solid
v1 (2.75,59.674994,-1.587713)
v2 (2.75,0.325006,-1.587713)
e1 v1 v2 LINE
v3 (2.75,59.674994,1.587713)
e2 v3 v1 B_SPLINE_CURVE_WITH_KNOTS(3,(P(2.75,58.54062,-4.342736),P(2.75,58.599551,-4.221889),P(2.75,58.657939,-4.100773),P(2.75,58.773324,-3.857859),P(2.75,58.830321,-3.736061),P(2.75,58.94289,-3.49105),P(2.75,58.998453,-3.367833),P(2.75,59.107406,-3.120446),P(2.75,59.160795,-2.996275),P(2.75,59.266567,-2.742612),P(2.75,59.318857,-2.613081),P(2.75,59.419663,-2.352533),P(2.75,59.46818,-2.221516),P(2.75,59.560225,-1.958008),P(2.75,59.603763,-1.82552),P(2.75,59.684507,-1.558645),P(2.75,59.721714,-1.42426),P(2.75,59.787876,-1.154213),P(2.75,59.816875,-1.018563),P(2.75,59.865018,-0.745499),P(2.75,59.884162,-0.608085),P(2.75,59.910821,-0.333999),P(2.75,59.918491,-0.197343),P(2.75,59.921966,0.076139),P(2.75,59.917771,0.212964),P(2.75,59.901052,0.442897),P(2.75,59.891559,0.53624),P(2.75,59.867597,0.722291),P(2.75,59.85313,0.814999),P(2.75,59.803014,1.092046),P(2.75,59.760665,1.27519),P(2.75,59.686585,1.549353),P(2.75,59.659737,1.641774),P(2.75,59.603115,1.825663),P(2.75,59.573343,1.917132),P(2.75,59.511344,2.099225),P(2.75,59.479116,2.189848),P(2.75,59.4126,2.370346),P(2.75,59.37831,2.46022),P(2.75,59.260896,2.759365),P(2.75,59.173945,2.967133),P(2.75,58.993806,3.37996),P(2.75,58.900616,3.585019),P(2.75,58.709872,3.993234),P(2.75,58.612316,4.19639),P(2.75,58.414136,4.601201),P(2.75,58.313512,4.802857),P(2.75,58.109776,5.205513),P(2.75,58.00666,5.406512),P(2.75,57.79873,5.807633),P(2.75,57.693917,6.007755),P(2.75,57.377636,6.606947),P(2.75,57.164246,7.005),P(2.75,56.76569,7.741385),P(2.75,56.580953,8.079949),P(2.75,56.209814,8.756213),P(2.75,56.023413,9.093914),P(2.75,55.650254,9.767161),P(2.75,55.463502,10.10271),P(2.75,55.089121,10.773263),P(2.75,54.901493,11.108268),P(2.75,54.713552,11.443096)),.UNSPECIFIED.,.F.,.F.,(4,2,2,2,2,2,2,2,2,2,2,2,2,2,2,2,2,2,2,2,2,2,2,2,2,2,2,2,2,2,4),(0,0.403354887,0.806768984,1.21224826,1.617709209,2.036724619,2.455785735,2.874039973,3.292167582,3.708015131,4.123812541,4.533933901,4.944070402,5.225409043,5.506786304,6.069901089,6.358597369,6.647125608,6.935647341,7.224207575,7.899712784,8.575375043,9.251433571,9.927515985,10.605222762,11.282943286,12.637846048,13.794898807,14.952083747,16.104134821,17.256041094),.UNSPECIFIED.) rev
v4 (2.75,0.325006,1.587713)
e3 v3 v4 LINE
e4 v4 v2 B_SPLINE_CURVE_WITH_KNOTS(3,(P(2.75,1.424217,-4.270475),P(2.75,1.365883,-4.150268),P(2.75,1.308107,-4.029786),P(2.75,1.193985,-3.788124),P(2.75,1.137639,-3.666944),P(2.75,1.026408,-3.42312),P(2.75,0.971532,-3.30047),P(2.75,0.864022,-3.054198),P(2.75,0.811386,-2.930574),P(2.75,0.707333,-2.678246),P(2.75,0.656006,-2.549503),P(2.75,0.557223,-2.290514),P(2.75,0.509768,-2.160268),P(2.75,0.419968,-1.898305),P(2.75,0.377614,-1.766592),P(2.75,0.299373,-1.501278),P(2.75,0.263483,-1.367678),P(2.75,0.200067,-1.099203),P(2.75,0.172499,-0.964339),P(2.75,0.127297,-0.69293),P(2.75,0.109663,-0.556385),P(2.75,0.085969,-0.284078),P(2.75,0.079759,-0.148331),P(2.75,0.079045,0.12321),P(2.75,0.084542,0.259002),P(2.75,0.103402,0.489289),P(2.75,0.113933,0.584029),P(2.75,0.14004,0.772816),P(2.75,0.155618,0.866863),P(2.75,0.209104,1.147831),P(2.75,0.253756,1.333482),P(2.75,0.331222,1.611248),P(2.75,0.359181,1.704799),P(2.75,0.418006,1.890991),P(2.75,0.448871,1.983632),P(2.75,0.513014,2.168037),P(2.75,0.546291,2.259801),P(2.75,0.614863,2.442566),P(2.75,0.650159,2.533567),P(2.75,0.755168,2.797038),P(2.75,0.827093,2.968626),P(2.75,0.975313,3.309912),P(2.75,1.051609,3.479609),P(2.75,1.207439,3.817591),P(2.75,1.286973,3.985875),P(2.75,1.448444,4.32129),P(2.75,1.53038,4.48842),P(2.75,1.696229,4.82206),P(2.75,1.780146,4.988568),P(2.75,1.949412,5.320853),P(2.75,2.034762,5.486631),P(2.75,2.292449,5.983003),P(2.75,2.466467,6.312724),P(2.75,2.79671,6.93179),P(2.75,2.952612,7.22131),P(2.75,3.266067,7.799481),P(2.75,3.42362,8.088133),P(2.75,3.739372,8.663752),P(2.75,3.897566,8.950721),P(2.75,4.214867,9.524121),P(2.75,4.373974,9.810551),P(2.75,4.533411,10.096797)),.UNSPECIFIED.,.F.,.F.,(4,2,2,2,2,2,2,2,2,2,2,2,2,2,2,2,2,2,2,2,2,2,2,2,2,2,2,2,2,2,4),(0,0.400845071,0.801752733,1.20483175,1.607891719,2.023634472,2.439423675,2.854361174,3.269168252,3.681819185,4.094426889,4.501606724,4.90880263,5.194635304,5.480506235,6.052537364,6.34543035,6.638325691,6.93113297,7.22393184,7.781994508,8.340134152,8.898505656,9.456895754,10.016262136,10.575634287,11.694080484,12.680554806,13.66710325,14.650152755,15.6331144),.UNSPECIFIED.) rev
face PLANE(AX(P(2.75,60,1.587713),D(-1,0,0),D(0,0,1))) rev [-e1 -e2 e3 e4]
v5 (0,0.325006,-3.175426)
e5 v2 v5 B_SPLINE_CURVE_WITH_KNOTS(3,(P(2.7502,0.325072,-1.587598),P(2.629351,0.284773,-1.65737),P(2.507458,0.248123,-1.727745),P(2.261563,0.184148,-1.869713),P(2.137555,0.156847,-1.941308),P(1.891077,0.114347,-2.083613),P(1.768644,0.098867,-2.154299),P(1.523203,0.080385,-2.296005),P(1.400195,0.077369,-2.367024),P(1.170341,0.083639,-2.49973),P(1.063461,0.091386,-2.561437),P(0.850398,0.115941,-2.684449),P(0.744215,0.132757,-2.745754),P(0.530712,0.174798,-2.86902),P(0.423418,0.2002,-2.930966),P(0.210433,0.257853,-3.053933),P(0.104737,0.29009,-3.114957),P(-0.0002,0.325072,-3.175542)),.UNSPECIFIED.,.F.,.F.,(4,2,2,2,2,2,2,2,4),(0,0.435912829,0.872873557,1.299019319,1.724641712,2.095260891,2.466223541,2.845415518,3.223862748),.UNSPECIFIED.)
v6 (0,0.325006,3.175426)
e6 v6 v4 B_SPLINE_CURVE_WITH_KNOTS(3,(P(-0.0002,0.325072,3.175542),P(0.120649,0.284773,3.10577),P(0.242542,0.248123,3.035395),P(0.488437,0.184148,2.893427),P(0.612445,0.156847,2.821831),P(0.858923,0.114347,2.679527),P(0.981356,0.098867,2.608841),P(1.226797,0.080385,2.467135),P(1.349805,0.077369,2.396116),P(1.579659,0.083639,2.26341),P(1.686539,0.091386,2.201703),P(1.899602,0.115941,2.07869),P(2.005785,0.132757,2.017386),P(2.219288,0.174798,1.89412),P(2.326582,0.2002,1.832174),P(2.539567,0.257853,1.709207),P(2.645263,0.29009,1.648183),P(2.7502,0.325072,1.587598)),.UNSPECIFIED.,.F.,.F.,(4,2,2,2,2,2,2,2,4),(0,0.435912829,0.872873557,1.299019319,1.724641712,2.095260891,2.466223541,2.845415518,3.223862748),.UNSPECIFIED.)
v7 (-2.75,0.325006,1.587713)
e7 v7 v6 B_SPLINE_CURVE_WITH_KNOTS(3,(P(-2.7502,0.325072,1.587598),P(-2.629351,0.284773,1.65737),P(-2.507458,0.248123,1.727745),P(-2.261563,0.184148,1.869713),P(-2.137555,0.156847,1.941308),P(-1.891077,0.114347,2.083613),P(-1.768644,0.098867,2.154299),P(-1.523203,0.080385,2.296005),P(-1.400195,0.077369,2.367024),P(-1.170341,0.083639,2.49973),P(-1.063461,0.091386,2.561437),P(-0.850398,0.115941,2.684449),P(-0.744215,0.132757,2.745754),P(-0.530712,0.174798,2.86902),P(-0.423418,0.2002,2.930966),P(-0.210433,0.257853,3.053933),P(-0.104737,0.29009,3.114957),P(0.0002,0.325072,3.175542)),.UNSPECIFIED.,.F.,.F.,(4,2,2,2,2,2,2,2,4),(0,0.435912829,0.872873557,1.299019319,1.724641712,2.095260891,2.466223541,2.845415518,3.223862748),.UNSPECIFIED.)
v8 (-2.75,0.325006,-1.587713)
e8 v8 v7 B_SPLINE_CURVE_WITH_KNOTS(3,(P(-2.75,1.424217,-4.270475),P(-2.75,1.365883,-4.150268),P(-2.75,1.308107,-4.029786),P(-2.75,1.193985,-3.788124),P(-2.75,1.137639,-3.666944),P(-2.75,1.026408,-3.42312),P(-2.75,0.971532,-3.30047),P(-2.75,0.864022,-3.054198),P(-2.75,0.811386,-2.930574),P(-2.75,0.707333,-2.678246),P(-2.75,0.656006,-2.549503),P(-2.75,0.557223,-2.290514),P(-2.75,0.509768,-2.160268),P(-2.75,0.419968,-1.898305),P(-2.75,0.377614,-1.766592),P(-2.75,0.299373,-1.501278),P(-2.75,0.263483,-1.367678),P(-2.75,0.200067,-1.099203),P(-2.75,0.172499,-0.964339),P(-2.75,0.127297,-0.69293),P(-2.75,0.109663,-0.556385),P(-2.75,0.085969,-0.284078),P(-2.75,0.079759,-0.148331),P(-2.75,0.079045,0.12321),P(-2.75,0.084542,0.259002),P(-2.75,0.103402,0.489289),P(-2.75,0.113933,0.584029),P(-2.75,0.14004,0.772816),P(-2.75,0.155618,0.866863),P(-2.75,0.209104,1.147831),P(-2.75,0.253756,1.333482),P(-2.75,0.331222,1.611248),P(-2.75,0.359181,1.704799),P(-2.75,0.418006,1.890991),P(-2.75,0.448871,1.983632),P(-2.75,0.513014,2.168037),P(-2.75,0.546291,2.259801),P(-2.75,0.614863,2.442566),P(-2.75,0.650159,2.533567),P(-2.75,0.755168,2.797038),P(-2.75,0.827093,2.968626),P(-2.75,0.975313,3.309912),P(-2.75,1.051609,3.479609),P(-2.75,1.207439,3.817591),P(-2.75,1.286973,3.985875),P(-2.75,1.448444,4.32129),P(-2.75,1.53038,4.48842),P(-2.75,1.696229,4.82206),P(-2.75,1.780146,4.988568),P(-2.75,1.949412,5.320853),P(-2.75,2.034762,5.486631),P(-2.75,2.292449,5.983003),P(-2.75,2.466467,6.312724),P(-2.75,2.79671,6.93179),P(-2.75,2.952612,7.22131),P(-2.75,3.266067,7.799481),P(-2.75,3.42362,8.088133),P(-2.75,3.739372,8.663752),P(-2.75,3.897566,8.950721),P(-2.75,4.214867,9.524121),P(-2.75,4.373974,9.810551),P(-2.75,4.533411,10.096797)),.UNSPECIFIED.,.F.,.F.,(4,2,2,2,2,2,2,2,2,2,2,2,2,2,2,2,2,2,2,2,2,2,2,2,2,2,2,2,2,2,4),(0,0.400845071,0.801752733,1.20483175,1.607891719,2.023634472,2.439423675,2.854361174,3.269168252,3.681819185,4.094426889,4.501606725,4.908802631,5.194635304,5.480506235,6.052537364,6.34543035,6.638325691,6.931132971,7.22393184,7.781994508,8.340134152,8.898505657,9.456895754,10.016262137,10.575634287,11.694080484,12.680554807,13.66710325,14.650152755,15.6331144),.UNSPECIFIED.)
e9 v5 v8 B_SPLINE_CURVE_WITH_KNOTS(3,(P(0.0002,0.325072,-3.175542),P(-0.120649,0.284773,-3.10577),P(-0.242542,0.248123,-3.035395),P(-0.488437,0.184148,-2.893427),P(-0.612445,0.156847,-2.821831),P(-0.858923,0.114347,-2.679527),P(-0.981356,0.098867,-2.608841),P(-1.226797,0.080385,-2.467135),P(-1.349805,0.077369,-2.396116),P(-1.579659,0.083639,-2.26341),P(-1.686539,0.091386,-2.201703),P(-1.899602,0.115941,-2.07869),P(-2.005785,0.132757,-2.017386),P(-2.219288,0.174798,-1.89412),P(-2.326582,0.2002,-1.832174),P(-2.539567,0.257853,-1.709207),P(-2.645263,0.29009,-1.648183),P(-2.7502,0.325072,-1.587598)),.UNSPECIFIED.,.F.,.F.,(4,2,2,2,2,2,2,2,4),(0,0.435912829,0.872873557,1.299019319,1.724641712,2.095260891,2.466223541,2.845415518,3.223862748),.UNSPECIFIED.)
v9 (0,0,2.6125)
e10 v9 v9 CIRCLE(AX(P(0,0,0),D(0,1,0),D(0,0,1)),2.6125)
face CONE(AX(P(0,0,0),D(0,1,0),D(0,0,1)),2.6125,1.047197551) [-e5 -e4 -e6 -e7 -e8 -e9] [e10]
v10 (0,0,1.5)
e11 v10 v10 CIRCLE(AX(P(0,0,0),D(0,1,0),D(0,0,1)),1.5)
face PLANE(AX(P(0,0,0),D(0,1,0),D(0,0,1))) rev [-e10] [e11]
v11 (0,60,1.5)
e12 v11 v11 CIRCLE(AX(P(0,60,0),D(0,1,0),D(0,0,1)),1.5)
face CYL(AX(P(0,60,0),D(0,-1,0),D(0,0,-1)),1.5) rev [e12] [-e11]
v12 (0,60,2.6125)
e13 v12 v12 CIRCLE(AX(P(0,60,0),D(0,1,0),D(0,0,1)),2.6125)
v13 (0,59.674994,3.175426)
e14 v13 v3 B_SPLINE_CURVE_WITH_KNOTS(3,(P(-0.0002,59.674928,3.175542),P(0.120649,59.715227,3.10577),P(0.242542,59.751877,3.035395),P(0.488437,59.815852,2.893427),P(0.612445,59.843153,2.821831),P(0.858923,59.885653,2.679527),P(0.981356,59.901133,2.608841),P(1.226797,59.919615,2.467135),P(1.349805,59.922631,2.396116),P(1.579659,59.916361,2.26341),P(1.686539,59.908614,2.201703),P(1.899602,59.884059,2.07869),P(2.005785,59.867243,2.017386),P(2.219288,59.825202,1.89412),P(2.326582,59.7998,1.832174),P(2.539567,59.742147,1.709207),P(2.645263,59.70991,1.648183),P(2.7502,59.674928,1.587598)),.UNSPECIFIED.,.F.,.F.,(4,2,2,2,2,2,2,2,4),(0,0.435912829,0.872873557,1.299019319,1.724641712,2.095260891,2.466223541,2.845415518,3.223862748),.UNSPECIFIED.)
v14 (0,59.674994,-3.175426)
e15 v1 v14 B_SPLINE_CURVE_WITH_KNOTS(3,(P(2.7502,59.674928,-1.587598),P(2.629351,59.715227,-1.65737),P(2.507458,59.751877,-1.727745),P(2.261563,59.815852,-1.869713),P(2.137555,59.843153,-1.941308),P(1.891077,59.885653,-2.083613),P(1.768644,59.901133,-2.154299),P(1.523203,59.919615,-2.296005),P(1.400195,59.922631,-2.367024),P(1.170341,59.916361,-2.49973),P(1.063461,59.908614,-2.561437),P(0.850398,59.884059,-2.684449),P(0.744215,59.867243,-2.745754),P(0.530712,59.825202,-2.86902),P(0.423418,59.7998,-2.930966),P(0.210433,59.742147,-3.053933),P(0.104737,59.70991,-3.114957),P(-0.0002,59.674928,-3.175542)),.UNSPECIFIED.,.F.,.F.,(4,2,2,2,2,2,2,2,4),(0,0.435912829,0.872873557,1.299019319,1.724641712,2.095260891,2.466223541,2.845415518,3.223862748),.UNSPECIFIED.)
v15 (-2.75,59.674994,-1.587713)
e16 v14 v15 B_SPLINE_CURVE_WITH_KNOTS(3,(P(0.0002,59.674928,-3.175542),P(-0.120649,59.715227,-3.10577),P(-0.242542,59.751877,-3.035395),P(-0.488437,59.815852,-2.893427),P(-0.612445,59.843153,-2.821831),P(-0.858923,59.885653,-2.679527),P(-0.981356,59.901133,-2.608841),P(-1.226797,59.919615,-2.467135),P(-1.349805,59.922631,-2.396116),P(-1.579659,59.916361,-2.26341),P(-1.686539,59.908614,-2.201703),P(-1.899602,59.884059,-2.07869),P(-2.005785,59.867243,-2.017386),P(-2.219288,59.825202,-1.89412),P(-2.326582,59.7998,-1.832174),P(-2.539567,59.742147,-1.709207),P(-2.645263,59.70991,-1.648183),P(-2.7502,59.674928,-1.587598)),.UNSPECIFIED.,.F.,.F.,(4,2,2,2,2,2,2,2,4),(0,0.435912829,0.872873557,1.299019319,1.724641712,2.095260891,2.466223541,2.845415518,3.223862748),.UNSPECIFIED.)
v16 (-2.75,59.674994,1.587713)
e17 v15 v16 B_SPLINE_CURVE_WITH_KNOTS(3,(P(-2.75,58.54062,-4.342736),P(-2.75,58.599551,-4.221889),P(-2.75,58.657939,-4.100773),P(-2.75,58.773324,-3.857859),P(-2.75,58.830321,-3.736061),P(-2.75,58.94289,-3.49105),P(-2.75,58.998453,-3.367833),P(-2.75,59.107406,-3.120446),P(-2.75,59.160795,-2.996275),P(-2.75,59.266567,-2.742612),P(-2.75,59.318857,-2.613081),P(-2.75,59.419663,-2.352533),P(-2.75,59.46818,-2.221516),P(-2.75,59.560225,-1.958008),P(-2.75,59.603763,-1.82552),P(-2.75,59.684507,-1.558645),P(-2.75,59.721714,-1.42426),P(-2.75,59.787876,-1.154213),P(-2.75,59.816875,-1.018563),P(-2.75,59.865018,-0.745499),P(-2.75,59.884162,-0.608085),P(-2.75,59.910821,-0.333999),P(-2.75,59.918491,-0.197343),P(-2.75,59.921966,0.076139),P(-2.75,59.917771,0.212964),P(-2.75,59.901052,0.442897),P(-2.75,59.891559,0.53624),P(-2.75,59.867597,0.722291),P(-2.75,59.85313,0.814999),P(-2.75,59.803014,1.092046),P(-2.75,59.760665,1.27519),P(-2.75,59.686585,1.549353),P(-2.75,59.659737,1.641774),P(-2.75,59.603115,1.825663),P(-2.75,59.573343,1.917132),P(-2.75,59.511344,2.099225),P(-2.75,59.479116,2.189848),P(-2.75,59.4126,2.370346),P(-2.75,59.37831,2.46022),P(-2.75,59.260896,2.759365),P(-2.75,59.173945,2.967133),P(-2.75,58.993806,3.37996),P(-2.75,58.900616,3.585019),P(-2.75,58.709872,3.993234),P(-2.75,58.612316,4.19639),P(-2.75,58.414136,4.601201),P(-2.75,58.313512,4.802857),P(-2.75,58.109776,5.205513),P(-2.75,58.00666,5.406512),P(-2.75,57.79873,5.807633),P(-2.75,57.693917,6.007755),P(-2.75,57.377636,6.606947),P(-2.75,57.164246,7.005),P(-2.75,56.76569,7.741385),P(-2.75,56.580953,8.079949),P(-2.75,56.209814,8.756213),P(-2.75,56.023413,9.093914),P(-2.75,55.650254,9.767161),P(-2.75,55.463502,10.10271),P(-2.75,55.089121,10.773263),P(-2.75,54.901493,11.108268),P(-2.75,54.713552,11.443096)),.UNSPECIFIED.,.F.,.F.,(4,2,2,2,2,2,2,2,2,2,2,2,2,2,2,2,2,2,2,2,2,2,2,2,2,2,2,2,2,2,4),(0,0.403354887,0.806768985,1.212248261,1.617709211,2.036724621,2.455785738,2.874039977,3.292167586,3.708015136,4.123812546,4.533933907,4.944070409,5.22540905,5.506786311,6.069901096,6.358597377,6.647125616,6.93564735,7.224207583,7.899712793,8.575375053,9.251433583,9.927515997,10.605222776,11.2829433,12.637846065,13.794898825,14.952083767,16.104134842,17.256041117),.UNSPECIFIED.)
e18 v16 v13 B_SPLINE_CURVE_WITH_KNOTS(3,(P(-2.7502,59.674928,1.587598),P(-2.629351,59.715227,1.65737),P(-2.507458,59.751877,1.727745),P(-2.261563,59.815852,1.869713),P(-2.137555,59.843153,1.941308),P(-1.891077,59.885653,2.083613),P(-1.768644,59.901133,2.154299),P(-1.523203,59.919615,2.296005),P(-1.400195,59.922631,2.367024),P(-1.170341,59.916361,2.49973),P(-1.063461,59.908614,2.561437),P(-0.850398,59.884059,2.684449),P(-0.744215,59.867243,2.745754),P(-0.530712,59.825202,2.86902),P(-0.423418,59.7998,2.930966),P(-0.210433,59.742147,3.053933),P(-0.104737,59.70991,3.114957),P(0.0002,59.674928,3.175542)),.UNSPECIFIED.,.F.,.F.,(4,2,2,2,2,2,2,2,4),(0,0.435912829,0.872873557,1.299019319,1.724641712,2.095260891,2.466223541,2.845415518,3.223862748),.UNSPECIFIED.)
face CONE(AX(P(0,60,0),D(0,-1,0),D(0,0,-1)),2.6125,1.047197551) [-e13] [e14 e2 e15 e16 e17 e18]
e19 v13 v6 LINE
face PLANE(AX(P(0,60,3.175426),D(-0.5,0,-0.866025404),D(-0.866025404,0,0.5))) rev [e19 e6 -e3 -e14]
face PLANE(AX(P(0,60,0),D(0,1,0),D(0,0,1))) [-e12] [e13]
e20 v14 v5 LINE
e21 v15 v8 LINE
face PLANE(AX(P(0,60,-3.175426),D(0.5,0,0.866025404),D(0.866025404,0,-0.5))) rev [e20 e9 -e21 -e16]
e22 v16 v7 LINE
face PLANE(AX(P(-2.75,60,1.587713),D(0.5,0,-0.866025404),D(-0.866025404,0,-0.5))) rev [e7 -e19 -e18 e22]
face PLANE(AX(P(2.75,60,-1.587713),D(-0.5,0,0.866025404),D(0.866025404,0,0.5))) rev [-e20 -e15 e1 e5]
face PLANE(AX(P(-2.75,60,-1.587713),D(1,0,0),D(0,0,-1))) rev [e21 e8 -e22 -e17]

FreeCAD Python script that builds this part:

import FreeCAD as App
import Part
import Sketcher

V = App.Vector
Q = App.Units.Quantity

doc = App.newDocument("Part")
body = doc.addObject("PartDesign::Body", "Body")

# Sketch on XZ plane
sketch1 = body.newObject("Sketcher::SketchObject", "Sketch")
sketch1.AttachmentSupport = (doc.getObject("XZ_Plane"), [""])
sketch1.MapMode = "FlatFace"
sketch1.addGeometry([
    Part.LineSegment(V(0, -3.175426, 0), V(-2.75, -1.587713, 0)),  # 0
    Part.LineSegment(V(-2.75, -1.587713, 0), V(-2.75, 1.587713, 0)),  # 1
    Part.LineSegment(V(-2.75, 1.587713, 0), V(0, 3.175426, 0)),  # 2
    Part.LineSegment(V(0, 3.175426, 0), V(2.75, 1.587713, 0)),  # 3
    Part.LineSegment(V(2.75, 1.587713, 0), V(2.75, -1.587713, 0)),  # 4
    Part.LineSegment(V(2.75, -1.587713, 0), V(0, -3.175426, 0)),  # 5
    Part.Circle(V(0, 0, 0), V(0, 0, 1), 1.5),  # 6
], False)
sketch1.addConstraint([
    Sketcher.Constraint("Coincident", 0, 2, 1, 1),
    Sketcher.Constraint("Coincident", 1, 2, 2, 1),
    Sketcher.Constraint("Coincident", 2, 2, 3, 1),
    Sketcher.Constraint("Coincident", 3, 2, 4, 1),
    Sketcher.Constraint("Coincident", 4, 2, 5, 1),
    Sketcher.Constraint("Coincident", 5, 2, 0, 1),
    Sketcher.Constraint("Vertical", 1),
    Sketcher.Constraint("Vertical", 4),
    Sketcher.Constraint("Coincident", 6, 3, -1, 1),
    Sketcher.Constraint("Symmetric", 0, 2, 3, 2, -1, 1),
    Sketcher.Constraint("Symmetric", 2, 2, 5, 2, -1, 1),
    Sketcher.Constraint("PointOnObject", 2, 2, -2),
    Sketcher.Constraint("Parallel", 2, 5),
    Sketcher.Constraint("Horizontal", 1, 2, 3, 2),
    Sketcher.Constraint("Diameter", 6, 3.0),
    Sketcher.Constraint("Angle", 0, Q("150 deg")),
    Sketcher.Constraint("DistanceX", 1, 2, 3, 2, 5.5),
    Sketcher.Constraint("DistanceY", 1, 1, 1, 2, 3.175426),
])
pad1 = body.newObject("PartDesign::Pad", "Pad")
pad1.Profile = sketch1
pad1.Length = 60
pad1.Reversed = True

# Sketch on YZ plane
sketch2 = body.newObject("Sketcher::SketchObject", "Sketch001")
sketch2.AttachmentSupport = (doc.getObject("YZ_Plane"), [""])
sketch2.MapMode = "FlatFace"
sketch2.addGeometry([
    Part.LineSegment(V(3.328738, 8.378044, 0), V(0, 8.378044, 0)),  # 0
    Part.LineSegment(V(0, 8.378044, 0), V(0, 2.6125, 0)),  # 1
    Part.LineSegment(V(0, 2.6125, 0), V(3.328738, 8.378044, 0)),  # 2
    Part.LineSegment(V(60, 2.6125, 0), V(60, 11.931876, 0)),  # 3
    Part.LineSegment(V(60, 11.931876, 0), V(54.619456, 11.931876, 0)),  # 4
    Part.LineSegment(V(54.619456, 11.931876, 0), V(60, 2.6125, 0)),  # 5
], False)
sketch2.addConstraint([
    Sketcher.Constraint("Coincident", 0, 2, 1, 1),
    Sketcher.Constraint("Coincident", 1, 2, 2, 1),
    Sketcher.Constraint("Coincident", 2, 2, 0, 1),
    Sketcher.Constraint("Coincident", 3, 2, 4, 1),
    Sketcher.Constraint("Coincident", 4, 2, 5, 1),
    Sketcher.Constraint("Coincident", 5, 2, 3, 1),
    Sketcher.Constraint("Horizontal", 0),
    Sketcher.Constraint("Vertical", 1),
    Sketcher.Constraint("Vertical", 3),
    Sketcher.Constraint("Horizontal", 4),
    Sketcher.Constraint("PointOnObject", 0, 2, -2),
    Sketcher.Constraint("Horizontal", 1, 2, 5, 2),
    Sketcher.Constraint("Angle", 2, Q("60 deg")),
    Sketcher.Constraint("Angle", 5, Q("-60 deg")),
    Sketcher.Constraint("DistanceX", -1, 1, 3, 2, 60.0),
    Sketcher.Constraint("DistanceX", 0, 2, 0, 1, 3.328738),
    Sketcher.Constraint("DistanceY", -1, 1, 1, 2, 2.6125),
    Sketcher.Constraint("Distance", 5, 10.761088),
])
groove = body.newObject("PartDesign::Groove", "Groove")
groove.Profile = sketch2
groove.ReferenceAxis = (sketch2, ["H_Axis"])
groove.Angle = 360

doc.recompute()
